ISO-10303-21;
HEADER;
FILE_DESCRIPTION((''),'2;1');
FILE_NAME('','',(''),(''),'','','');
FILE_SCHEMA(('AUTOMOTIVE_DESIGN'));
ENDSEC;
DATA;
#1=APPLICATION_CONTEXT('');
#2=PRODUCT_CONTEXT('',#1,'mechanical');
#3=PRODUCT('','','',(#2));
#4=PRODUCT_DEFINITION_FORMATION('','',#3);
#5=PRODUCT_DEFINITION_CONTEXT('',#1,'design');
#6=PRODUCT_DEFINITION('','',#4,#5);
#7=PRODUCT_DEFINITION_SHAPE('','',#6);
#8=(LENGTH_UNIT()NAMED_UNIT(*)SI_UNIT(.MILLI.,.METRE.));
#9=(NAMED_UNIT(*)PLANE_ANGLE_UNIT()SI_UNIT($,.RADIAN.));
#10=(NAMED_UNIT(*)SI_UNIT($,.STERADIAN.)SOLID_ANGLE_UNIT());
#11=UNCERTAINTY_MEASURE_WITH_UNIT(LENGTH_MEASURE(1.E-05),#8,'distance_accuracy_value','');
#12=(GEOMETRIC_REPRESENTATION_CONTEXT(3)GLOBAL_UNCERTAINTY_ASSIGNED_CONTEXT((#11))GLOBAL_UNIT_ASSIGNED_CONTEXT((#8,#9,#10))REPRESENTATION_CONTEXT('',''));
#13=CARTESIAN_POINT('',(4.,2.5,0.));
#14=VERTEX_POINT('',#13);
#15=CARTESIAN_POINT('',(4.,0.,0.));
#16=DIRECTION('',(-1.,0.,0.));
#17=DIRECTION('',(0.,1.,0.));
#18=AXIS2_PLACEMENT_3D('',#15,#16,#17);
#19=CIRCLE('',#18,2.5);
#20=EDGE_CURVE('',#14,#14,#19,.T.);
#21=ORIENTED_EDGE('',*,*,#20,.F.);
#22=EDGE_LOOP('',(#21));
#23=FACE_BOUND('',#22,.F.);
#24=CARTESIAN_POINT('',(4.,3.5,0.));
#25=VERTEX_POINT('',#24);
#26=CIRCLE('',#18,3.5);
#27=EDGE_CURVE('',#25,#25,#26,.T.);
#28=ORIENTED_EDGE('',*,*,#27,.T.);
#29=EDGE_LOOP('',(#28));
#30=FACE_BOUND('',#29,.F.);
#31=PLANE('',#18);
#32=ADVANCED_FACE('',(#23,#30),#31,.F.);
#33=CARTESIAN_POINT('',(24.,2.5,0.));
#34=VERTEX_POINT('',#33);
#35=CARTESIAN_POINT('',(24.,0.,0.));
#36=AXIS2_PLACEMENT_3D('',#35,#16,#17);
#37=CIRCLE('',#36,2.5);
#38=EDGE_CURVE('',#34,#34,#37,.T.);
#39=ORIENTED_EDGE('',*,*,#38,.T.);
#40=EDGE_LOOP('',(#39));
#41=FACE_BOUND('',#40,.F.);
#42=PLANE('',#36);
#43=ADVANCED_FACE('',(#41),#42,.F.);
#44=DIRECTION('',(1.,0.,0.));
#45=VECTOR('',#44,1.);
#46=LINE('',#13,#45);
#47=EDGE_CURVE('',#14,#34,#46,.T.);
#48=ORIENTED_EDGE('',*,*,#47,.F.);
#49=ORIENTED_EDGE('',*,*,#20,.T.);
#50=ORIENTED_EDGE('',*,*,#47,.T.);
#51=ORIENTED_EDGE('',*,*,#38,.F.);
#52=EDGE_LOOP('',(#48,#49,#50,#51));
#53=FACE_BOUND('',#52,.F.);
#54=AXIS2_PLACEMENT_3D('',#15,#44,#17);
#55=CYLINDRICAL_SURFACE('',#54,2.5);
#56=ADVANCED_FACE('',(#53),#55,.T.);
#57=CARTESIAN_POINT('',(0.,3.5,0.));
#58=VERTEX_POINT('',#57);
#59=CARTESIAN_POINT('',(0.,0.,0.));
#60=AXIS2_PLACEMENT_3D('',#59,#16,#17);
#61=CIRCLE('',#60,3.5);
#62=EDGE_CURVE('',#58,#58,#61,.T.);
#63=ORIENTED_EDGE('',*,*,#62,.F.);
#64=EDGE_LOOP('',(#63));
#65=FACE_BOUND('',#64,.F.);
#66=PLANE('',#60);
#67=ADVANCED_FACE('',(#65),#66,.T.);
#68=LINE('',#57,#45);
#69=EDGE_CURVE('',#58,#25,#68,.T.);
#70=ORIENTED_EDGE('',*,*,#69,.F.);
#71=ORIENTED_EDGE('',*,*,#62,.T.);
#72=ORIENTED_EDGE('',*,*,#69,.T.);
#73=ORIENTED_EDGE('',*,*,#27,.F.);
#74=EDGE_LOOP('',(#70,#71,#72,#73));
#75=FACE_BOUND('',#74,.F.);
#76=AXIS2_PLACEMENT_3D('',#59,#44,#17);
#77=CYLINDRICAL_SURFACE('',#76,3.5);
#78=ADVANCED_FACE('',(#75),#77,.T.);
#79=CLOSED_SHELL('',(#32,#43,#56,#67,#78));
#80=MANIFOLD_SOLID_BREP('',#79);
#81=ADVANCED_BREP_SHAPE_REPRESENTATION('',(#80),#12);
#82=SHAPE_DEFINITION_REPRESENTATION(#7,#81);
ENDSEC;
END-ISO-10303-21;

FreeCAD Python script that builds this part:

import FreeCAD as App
import Part
import Sketcher

V = App.Vector
Q = App.Units.Quantity

doc = App.newDocument("Part")
body = doc.addObject("PartDesign::Body", "Body")

# Sketch on XY plane
sketch1 = body.newObject("Sketcher::SketchObject", "Sketch")
sketch1.AttachmentSupport = (doc.getObject("XY_Plane"), [""])
sketch1.MapMode = "FlatFace"
sketch1.addGeometry(Part.LineSegment(V(0, 3.5, 0), V(0, 0, 0)), False)
sketch1.addGeometry(Part.LineSegment(V(0, 0, 0), V(24, 0, 0)), False)
sketch1.addGeometry(Part.LineSegment(V(24, 0, 0), V(24, 2.5, 0)), False)
sketch1.addGeometry(Part.LineSegment(V(24, 2.5, 0), V(4, 2.5, 0)), False)
sketch1.addGeometry(Part.LineSegment(V(4, 2.5, 0), V(4, 3.5, 0)), False)
sketch1.addGeometry(Part.LineSegment(V(4, 3.5, 0), V(0, 3.5, 0)), False)
sketch1.addConstraint(Sketcher.Constraint("Coincident", 0, 2, 1, 1))
sketch1.addConstraint(Sketcher.Constraint("Coincident", 1, 2, 2, 1))
sketch1.addConstraint(Sketcher.Constraint("Coincident", 2, 2, 3, 1))
sketch1.addConstraint(Sketcher.Constraint("Coincident", 3, 2, 4, 1))
sketch1.addConstraint(Sketcher.Constraint("Coincident", 4, 2, 5, 1))
sketch1.addConstraint(Sketcher.Constraint("Coincident", 5, 2, 0, 1))
sketch1.addConstraint(Sketcher.Constraint("Vertical", 0))
sketch1.addConstraint(Sketcher.Constraint("Horizontal", 1))
sketch1.addConstraint(Sketcher.Constraint("Vertical", 2))
sketch1.addConstraint(Sketcher.Constraint("Horizontal", 3))
sketch1.addConstraint(Sketcher.Constraint("Vertical", 4))
sketch1.addConstraint(Sketcher.Constraint("Horizontal", 5))
sketch1.addConstraint(Sketcher.Constraint("Coincident", 0, 2, -1, 1))
sketch1.addConstraint(Sketcher.Constraint("DistanceX", 1, 1, 1, 2, Q("24 mm")))
sketch1.addConstraint(Sketcher.Constraint("DistanceX", 3, 2, 3, 1, Q("20 mm")))
sketch1.addConstraint(Sketcher.Constraint("DistanceY", 4, 1, 4, 2, Q("1 mm")))
sketch1.addConstraint(Sketcher.Constraint("DistanceY", 0, 2, 0, 1, Q("3.5 mm")))
revolution = body.newObject("PartDesign::Revolution", "Revolution")
revolution.Profile = sketch1
revolution.ReferenceAxis = (sketch1, ["H_Axis"])
revolution.Angle = 360

doc.recompute()
